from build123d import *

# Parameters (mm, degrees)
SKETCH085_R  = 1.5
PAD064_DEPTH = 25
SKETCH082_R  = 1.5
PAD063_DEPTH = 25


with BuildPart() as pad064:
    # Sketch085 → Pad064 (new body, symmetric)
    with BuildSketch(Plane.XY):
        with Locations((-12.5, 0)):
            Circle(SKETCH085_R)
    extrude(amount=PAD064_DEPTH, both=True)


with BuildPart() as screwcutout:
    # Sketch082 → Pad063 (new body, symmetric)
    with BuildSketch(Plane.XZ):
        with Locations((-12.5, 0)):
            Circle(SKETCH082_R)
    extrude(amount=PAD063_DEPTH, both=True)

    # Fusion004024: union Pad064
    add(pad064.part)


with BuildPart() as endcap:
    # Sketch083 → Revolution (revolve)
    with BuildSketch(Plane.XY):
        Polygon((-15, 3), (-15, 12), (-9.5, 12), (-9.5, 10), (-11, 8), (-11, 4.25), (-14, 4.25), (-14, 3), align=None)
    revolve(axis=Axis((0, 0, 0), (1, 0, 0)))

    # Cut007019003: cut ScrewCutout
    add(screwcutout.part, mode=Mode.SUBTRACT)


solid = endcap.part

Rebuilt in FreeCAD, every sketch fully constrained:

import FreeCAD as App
import Part
import Sketcher
from FreeCAD import Vector

doc = App.newDocument("Part")
params = doc.addObject("Spreadsheet::Sheet", "Params")
for row, (alias, value) in enumerate([
    ("sketch1_diameter", "3 mm"),
    ("pad1_length", "50 mm"),
    ("sketch2_diameter", "3 mm"),
    ("pad2_length", "50 mm"),
    ("sketch3_width", "1 mm"),
    ("sketch3_width2", "3 mm"),
    ("sketch3_height", "9 mm"),
    ("sketch3_height2", "2 mm"),
    ("sketch3_width3", "5.5 mm"),
    ("revolution_angle", "360 deg"),
], start=1):
    params.set(f"A{row}", alias)
    params.set(f"B{row}", "=" + value)
    params.setAlias(f"B{row}", alias)

body = doc.addObject("PartDesign::Body", "Body")

# Sketch on XY plane
sketch1 = doc.addObject("Sketcher::SketchObject", "Sketch")
body.addObject(sketch1)
sketch1.AttachmentSupport = (doc.XY_Plane, [""])
sketch1.MapMode = "FlatFace"
sketch1.addGeometry(Part.Circle(Vector(-12.5, 0, 0), Vector(0, 0, 1), 1.5), False)
sketch1.addConstraint([
    Sketcher.Constraint("PointOnObject", 0, 3, -1),
    Sketcher.Constraint("Diameter", 0, 3.0),
    Sketcher.Constraint("DistanceX", 0, 3, -1, 1, 12.5),
])
sketch1.setExpression("Constraints[1]", "Params.sketch1_diameter")
pad1 = doc.addObject("PartDesign::Pad", "Pad")
body.addObject(pad1)
pad1.Profile = sketch1
pad1.setExpression("Length", "Params.pad1_length")
pad1.Midplane = True
body2 = doc.addObject("PartDesign::Body", "Body001")

# Sketch on XZ plane
sketch2 = doc.addObject("Sketcher::SketchObject", "Sketch001")
body2.addObject(sketch2)
sketch2.AttachmentSupport = (doc.getObject("XZ_Plane001"), [""])
sketch2.MapMode = "FlatFace"
sketch2.addGeometry(Part.Circle(Vector(-12.5, 0, 0), Vector(0, 0, 1), 1.5), False)
sketch2.addConstraint([
    Sketcher.Constraint("PointOnObject", 0, 3, -1),
    Sketcher.Constraint("Diameter", 0, 3.0),
    Sketcher.Constraint("DistanceX", 0, 3, -1, 1, 12.5),
])
sketch2.setExpression("Constraints[1]", "Params.sketch2_diameter")
pad2 = doc.addObject("PartDesign::Pad", "Pad001")
body2.addObject(pad2)
pad2.Profile = sketch2
pad2.setExpression("Length", "Params.pad2_length")
pad2.Midplane = True
doc.recompute()

boolean = doc.addObject("PartDesign::Boolean", "Boolean")
body2.addObject(boolean)
boolean.Type = "Fuse"
boolean.addObjects([body])
body3 = doc.addObject("PartDesign::Body", "Body002")

# Sketch on XY plane
sketch3 = doc.addObject("Sketcher::SketchObject", "Sketch002")
body3.addObject(sketch3)
sketch3.AttachmentSupport = (doc.getObject("XY_Plane002"), [""])
sketch3.MapMode = "FlatFace"
sketch3.addGeometry([
    Part.LineSegment(Vector(-15, 12, 0), Vector(-15, 3, 0)),  # 0
    Part.LineSegment(Vector(-15, 3, 0), Vector(-14, 3, 0)),  # 1
    Part.LineSegment(Vector(-14, 3, 0), Vector(-14, 4.2, 0)),  # 2
    Part.LineSegment(Vector(-14, 4.2, 0), Vector(-11, 4.2, 0)),  # 3
    Part.LineSegment(Vector(-11, 4.2, 0), Vector(-11, 8, 0)),  # 4
    Part.LineSegment(Vector(-11, 8, 0), Vector(-9.5, 10, 0)),  # 5
    Part.LineSegment(Vector(-9.5, 10, 0), Vector(-9.5, 12, 0)),  # 6
    Part.LineSegment(Vector(-9.5, 12, 0), Vector(-15, 12, 0)),  # 7
], False)
sketch3.addConstraint([
    Sketcher.Constraint("Coincident", 0, 2, 1, 1),
    Sketcher.Constraint("Coincident", 1, 2, 2, 1),
    Sketcher.Constraint("Coincident", 2, 2, 3, 1),
    Sketcher.Constraint("Coincident", 3, 2, 4, 1),
    Sketcher.Constraint("Coincident", 4, 2, 5, 1),
    Sketcher.Constraint("Coincident", 5, 2, 6, 1),
    Sketcher.Constraint("Coincident", 6, 2, 7, 1),
    Sketcher.Constraint("Coincident", 7, 2, 0, 1),
    Sketcher.Constraint("Vertical", 0),
    Sketcher.Constraint("Horizontal", 1),
    Sketcher.Constraint("Vertical", 2),
    Sketcher.Constraint("Horizontal", 3),
    Sketcher.Constraint("Vertical", 4),
    Sketcher.Constraint("Vertical", 6),
    Sketcher.Constraint("Horizontal", 7),
    Sketcher.Constraint("DistanceX", 1, 1, 1, 2, 1.0),
    Sketcher.Constraint("DistanceX", 3, 1, 3, 2, 3.0),
    Sketcher.Constraint("DistanceY", 0, 2, 0, 1, 9.0),
    Sketcher.Constraint("DistanceY", 6, 1, 6, 2, 2.0),
    Sketcher.Constraint("DistanceX", 7, 2, 7, 1, 5.5),
    Sketcher.Constraint("DistanceX", 0, 2, -1, 1, 15.0),
    Sketcher.Constraint("DistanceY", -1, 1, 0, 2, 3.0),
    Sketcher.Constraint("DistanceY", -1, 1, 4, 2, 8.0),
    Sketcher.Constraint("DistanceY", 2, 1, 2, 2, 1.25),
])
sketch3.setExpression("Constraints[15]", "Params.sketch3_width")
sketch3.setExpression("Constraints[16]", "Params.sketch3_width2")
sketch3.setExpression("Constraints[17]", "Params.sketch3_height")
sketch3.setExpression("Constraints[18]", "Params.sketch3_height2")
sketch3.setExpression("Constraints[19]", "Params.sketch3_width3")
revolution = doc.addObject("PartDesign::Revolution", "Revolution")
body3.addObject(revolution)
revolution.Profile = sketch3
revolution.ReferenceAxis = (sketch3, ["H_Axis"])
revolution.setExpression("Angle", "Params.revolution_angle")
doc.recompute()

boolean2 = doc.addObject("PartDesign::Boolean", "Boolean001")
body3.addObject(boolean2)
boolean2.Type = "Cut"
boolean2.addObjects([body2])

doc.recompute()
